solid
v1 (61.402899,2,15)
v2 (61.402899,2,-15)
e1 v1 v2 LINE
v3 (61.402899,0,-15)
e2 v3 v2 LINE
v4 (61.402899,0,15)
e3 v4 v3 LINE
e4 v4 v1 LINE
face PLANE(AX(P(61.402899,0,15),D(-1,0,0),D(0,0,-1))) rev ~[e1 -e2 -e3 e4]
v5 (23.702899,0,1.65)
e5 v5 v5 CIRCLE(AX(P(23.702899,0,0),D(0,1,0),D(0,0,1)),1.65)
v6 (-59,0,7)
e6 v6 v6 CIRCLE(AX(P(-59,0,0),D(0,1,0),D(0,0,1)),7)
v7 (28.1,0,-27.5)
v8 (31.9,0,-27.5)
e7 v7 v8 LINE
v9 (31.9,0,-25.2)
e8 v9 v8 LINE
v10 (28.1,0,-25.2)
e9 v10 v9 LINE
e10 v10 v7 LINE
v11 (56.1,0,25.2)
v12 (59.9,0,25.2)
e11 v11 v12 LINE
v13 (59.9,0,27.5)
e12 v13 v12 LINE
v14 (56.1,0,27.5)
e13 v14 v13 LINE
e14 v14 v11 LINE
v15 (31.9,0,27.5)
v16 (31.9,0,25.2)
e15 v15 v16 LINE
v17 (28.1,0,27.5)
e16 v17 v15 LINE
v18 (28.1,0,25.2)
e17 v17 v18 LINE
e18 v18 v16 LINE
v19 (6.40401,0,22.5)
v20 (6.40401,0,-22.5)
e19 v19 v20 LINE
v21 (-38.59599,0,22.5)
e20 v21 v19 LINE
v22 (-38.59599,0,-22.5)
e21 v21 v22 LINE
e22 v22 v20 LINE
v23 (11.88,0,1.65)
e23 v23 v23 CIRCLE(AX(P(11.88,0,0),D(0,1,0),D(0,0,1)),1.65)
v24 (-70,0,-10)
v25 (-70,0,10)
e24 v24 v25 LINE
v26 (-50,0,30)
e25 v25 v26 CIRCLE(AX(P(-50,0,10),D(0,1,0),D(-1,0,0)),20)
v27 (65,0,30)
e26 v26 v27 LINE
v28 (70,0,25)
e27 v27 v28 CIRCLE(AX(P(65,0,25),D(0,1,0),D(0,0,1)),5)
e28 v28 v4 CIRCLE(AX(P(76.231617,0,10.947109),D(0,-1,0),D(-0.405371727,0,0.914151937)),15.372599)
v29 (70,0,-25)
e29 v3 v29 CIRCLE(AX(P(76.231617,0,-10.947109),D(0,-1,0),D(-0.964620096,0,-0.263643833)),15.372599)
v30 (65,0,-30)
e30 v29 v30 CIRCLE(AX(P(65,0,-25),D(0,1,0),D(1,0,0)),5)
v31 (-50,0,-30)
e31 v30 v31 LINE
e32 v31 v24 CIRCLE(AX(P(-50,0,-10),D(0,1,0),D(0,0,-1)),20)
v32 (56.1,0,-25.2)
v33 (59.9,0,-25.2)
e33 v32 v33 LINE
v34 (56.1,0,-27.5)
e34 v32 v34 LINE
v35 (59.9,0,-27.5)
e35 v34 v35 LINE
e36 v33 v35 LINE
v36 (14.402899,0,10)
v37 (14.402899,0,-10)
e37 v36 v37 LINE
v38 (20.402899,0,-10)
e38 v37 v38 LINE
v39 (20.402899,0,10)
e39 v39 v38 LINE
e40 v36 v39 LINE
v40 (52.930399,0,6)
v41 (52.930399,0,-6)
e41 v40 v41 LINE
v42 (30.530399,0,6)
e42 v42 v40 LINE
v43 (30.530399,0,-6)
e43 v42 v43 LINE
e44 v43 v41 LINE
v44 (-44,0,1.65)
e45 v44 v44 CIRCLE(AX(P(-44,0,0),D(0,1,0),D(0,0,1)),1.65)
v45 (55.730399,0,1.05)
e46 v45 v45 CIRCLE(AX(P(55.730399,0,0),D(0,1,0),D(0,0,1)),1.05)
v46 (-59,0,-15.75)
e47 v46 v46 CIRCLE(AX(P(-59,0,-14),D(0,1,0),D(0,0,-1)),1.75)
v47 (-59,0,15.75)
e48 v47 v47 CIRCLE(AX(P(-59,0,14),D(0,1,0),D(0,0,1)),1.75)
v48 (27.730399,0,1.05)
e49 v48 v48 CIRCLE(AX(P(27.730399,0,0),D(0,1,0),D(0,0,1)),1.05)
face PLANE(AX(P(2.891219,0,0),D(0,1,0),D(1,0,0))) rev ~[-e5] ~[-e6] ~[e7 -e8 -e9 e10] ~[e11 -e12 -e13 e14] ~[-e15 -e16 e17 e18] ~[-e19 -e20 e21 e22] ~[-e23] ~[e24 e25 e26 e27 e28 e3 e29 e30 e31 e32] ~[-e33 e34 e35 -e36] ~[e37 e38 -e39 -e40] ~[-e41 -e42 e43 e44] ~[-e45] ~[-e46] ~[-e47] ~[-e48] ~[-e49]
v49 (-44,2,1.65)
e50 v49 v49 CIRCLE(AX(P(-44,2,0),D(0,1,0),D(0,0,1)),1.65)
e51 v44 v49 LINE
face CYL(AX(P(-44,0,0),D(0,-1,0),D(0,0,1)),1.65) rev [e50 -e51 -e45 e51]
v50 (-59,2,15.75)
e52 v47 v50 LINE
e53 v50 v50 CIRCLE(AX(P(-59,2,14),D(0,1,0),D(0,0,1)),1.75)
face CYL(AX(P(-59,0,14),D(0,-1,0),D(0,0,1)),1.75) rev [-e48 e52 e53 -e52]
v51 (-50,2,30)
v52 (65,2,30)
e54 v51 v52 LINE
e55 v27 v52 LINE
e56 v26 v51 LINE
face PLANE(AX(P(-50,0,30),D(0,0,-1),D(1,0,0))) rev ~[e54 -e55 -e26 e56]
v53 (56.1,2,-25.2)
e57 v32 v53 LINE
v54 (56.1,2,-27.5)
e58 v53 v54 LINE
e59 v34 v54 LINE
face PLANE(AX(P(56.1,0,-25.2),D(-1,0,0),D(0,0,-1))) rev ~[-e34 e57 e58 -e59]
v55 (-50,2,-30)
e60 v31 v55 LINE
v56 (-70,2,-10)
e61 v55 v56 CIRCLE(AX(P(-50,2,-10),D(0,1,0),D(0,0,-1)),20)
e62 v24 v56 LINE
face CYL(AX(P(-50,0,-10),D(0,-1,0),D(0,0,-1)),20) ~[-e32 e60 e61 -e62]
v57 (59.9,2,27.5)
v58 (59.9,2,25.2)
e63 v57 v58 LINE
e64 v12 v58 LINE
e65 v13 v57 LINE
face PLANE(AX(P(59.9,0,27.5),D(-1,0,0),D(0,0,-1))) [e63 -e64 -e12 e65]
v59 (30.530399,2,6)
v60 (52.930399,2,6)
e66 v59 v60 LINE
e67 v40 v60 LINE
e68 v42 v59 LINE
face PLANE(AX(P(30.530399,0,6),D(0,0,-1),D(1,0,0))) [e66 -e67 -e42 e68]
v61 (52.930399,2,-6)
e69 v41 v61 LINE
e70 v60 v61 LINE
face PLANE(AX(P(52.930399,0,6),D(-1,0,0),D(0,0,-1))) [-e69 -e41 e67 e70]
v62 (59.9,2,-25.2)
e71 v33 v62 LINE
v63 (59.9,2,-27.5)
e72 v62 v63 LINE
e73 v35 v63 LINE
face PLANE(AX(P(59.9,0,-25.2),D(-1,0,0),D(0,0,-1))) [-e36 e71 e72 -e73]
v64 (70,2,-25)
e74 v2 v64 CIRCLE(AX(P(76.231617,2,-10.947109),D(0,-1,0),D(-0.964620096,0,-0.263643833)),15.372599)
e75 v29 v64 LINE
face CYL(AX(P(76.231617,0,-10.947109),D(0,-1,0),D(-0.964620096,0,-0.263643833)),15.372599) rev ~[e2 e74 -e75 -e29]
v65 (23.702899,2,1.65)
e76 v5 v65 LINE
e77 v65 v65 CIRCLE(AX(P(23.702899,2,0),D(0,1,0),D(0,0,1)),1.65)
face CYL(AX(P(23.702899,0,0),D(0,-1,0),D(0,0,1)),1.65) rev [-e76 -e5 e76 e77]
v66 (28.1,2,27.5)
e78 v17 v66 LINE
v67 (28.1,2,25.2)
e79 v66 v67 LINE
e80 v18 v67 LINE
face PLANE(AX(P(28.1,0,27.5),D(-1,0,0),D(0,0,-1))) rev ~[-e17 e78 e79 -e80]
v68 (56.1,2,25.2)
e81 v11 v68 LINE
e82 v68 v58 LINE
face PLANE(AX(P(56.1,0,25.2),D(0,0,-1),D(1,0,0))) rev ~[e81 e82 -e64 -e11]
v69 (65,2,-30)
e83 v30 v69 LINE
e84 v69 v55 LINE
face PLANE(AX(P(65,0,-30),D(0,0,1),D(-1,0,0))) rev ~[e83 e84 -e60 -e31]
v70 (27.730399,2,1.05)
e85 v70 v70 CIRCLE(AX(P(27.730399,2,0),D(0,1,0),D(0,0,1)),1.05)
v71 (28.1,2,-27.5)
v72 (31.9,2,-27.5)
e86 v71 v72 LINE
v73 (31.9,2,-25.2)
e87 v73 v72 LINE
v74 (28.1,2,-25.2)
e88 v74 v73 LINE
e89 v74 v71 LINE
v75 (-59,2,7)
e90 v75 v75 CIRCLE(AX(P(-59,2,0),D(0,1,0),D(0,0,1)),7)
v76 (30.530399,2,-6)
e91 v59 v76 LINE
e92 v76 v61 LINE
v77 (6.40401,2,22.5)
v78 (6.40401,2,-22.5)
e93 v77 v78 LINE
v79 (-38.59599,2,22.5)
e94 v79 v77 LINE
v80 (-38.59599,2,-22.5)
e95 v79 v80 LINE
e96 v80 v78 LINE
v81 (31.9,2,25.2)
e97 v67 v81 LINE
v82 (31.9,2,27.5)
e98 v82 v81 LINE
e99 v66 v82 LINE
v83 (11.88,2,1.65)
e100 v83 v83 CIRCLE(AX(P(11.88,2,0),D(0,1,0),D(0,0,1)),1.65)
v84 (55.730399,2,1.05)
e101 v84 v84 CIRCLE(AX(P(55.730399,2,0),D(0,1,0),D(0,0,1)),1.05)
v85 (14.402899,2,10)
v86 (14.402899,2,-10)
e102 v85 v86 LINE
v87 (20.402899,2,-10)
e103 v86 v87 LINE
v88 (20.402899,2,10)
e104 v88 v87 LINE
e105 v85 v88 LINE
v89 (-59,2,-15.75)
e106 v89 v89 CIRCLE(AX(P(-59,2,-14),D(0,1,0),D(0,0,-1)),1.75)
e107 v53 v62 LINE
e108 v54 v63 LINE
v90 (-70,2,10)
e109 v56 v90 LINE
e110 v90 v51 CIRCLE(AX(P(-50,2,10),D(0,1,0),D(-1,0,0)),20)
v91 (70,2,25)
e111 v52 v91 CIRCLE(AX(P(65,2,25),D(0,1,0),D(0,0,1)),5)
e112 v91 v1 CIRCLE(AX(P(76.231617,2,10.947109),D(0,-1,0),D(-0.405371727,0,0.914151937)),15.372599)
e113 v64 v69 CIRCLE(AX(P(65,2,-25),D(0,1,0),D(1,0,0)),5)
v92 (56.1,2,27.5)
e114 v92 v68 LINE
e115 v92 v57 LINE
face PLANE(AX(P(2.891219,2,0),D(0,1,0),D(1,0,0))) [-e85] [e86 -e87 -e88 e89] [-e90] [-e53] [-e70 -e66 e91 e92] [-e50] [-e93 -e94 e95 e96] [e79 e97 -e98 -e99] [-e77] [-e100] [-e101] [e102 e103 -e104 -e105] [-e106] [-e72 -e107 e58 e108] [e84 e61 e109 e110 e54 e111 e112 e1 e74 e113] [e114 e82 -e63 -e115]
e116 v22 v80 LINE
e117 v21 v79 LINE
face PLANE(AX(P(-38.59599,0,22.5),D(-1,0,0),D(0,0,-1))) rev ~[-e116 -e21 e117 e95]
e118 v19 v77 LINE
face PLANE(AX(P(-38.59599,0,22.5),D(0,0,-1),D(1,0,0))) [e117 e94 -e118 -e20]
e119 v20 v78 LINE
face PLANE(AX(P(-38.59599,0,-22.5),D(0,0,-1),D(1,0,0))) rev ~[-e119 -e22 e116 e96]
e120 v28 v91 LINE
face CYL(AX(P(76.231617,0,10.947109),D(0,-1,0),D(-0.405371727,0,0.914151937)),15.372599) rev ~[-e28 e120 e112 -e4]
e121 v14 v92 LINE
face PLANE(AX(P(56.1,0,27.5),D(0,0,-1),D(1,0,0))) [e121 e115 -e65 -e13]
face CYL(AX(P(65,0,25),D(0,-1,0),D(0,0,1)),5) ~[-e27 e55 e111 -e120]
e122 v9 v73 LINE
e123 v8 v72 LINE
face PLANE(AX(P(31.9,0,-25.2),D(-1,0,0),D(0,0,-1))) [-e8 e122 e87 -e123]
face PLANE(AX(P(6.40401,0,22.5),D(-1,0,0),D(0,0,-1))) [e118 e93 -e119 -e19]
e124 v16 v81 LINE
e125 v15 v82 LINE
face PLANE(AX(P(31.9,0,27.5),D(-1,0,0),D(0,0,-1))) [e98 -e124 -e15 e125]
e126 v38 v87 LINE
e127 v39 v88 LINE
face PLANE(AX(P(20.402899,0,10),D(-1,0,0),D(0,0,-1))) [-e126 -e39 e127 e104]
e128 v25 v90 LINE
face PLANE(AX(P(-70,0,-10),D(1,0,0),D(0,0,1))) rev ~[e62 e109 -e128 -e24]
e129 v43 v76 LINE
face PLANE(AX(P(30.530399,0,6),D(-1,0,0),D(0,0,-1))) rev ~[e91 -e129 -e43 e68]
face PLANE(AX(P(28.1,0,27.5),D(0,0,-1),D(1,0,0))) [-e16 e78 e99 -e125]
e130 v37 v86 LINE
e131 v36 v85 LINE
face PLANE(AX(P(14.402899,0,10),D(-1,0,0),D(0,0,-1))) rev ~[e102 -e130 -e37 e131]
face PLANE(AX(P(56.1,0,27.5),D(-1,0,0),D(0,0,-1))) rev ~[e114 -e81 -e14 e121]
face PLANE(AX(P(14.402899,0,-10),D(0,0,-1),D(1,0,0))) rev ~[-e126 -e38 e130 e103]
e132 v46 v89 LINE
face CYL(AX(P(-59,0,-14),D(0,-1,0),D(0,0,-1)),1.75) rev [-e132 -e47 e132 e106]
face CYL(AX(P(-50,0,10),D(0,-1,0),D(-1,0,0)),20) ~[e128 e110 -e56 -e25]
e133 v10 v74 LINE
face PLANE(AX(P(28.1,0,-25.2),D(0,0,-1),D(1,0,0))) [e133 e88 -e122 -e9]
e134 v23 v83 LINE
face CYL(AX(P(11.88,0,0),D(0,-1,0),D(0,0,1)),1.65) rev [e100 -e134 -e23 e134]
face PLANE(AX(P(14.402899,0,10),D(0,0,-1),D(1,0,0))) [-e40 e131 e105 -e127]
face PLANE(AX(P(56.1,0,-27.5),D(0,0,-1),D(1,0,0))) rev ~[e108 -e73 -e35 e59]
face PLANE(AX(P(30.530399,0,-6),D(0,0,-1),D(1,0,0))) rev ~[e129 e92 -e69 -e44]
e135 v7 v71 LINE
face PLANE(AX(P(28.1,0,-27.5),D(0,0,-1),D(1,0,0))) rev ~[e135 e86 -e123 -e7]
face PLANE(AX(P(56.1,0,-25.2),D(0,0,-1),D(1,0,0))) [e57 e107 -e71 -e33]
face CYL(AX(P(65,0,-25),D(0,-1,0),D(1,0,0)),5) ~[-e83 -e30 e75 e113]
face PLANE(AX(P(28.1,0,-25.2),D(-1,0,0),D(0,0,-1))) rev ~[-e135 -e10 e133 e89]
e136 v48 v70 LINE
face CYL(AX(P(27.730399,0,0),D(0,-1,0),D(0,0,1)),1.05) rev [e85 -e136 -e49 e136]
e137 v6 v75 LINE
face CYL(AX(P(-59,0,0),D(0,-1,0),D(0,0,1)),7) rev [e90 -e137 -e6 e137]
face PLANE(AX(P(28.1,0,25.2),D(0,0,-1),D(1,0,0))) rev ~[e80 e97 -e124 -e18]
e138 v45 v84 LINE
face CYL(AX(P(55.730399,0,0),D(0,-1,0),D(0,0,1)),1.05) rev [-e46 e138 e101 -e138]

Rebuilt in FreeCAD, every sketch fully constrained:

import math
import FreeCAD as App
import Part
import Sketcher


def add_polygon(sketch, points):
    """Adds a closed chain of lines whose ends are joined by coincident constraints."""
    first, n = sketch.GeometryCount, len(points)
    for a, b in zip(points, points[1:] + points[:1]):
        sketch.addGeometry(Part.LineSegment(App.Vector(*a, 0), App.Vector(*b, 0)), False)
    for i in range(n):
        sketch.addConstraint(Sketcher.Constraint("Coincident", first + i, 2, first + (i + 1) % n, 1))

doc = App.newDocument("Part")
params = doc.addObject("Spreadsheet::Sheet", "Params")
for row, (alias, value) in enumerate([
    ("sketch1_diameter", "14 mm"),
    ("sketch1_radius", "5 mm"),
    ("sketch1_radius2", "20 mm"),
    ("sketch1_diameter2", "3.5 mm"),
    ("sketch1_diameter3", "3.3 mm"),
    ("pad1_length", "2 mm"),
], start=1):
    params.set(f"A{row}", alias)
    params.set(f"B{row}", "=" + value)
    params.setAlias(f"B{row}", alias)

body = doc.addObject("PartDesign::Body", "Body")

# Sketch on XZ plane
sketch1 = doc.addObject("Sketcher::SketchObject", "Sketch")
body.addObject(sketch1)
sketch1.AttachmentSupport = (doc.XZ_Plane, [""])
sketch1.MapMode = "FlatFace"
sketch1.addGeometry(Part.LineSegment(App.Vector(-50, 30, 0), App.Vector(65, 30, 0)), False)  # 0
sketch1.addGeometry(Part.ArcOfCircle(Part.Circle(App.Vector(65, 25, 0), App.Vector(0, 0, 1), 5), math.radians(0), math.radians(90)), False)  # 1
sketch1.addGeometry(Part.ArcOfCircle(Part.Circle(App.Vector(76.2, 10.9, 0), App.Vector(0, 0, 1), 15.4), math.radians(114), math.radians(165)), False)  # 2
sketch1.addGeometry(Part.LineSegment(App.Vector(61.4, 15, 0), App.Vector(61.4, -15, 0)), False)  # 3
sketch1.addGeometry(Part.ArcOfCircle(Part.Circle(App.Vector(76.2, -10.9, 0), App.Vector(0, 0, 1), 15.4), math.radians(-165), math.radians(-114)), False)  # 4
sketch1.addGeometry(Part.ArcOfCircle(Part.Circle(App.Vector(65, -25, 0), App.Vector(0, 0, 1), 5), math.radians(-90), math.radians(0)), False)  # 5
sketch1.addGeometry(Part.LineSegment(App.Vector(65, -30, 0), App.Vector(-50, -30, 0)), False)  # 6
sketch1.addGeometry(Part.ArcOfCircle(Part.Circle(App.Vector(-50, -10, 0), App.Vector(0, 0, 1), 20), math.radians(180), math.radians(270)), False)  # 7
sketch1.addGeometry(Part.LineSegment(App.Vector(-70, -10, 0), App.Vector(-70, 10, 0)), False)  # 8
sketch1.addGeometry(Part.ArcOfCircle(Part.Circle(App.Vector(-50, 10, 0), App.Vector(0, 0, 1), 20), math.radians(90), math.radians(180)), False)  # 9
sketch1.addGeometry(Part.Circle(App.Vector(-59, 14, 0), App.Vector(0, 0, 1), 1.8), False)  # 10
add_polygon(sketch1, [(31.9, 27.5), (28.1, 27.5), (28.1, 25.2), (31.9, 25.2)])  # lines 11-14
add_polygon(sketch1, [(59.9, 27.5), (56.1, 27.5), (56.1, 25.2), (59.9, 25.2)])  # lines 15-18
sketch1.addGeometry(Part.Circle(App.Vector(-59, 0, 0), App.Vector(0, 0, 1), 7), False)  # 19
sketch1.addGeometry(Part.Circle(App.Vector(-44, 0, 0), App.Vector(0, 0, 1), 1.6), False)  # 20
add_polygon(sketch1, [(6.4, 22.5), (-38.6, 22.5), (-38.6, -22.5), (6.4, -22.5)])  # lines 21-24
sketch1.addGeometry(Part.Circle(App.Vector(-59, -14, 0), App.Vector(0, 0, 1), 1.8), False)  # 25
sketch1.addGeometry(Part.Circle(App.Vector(11.9, 0, 0), App.Vector(0, 0, 1), 1.6), False)  # 26
add_polygon(sketch1, [(20.4, 10), (14.4, 10), (14.4, -10), (20.4, -10)])  # lines 27-30
sketch1.addGeometry(Part.Circle(App.Vector(23.7, 0, 0), App.Vector(0, 0, 1), 1.6), False)  # 31
sketch1.addGeometry(Part.Circle(App.Vector(27.7, 0, 0), App.Vector(0, 0, 1), 1.1), False)  # 32
add_polygon(sketch1, [(52.9, 6), (30.5, 6), (30.5, -6), (52.9, -6)])  # lines 33-36
sketch1.addGeometry(Part.Circle(App.Vector(55.7, 0, 0), App.Vector(0, 0, 1), 1.1), False)  # 37
add_polygon(sketch1, [(31.9, -25.2), (28.1, -25.2), (28.1, -27.5), (31.9, -27.5)])  # lines 38-41
add_polygon(sketch1, [(59.9, -25.2), (56.1, -25.2), (56.1, -27.5), (59.9, -27.5)])  # lines 42-45
sketch1.addConstraint(Sketcher.Constraint("Tangent", 0, 2, 1, 2))
sketch1.addConstraint(Sketcher.Constraint("Coincident", 1, 1, 2, 1))
sketch1.addConstraint(Sketcher.Constraint("Coincident", 2, 2, 3, 1))
sketch1.addConstraint(Sketcher.Constraint("Coincident", 3, 2, 4, 1))
sketch1.addConstraint(Sketcher.Constraint("Coincident", 4, 2, 5, 2))
sketch1.addConstraint(Sketcher.Constraint("Tangent", 5, 1, 6, 1))
sketch1.addConstraint(Sketcher.Constraint("Tangent", 6, 2, 7, 2))
sketch1.addConstraint(Sketcher.Constraint("Tangent", 7, 1, 8, 1))
sketch1.addConstraint(Sketcher.Constraint("Tangent", 8, 2, 9, 2))
sketch1.addConstraint(Sketcher.Constraint("Tangent", 9, 1, 0, 1))
sketch1.addConstraint(Sketcher.Constraint("Horizontal", 0))
sketch1.addConstraint(Sketcher.Constraint("Vertical", 3))
sketch1.addConstraint(Sketcher.Constraint("Horizontal", 6))
sketch1.addConstraint(Sketcher.Constraint("Vertical", 8))
sketch1.addConstraint(Sketcher.Constraint("Horizontal", 11))
sketch1.addConstraint(Sketcher.Constraint("Vertical", 12))
sketch1.addConstraint(Sketcher.Constraint("Horizontal", 13))
sketch1.addConstraint(Sketcher.Constraint("Vertical", 14))
sketch1.addConstraint(Sketcher.Constraint("Horizontal", 15))
sketch1.addConstraint(Sketcher.Constraint("Vertical", 16))
sketch1.addConstraint(Sketcher.Constraint("Horizontal", 17))
sketch1.addConstraint(Sketcher.Constraint("Vertical", 18))
sketch1.addConstraint(Sketcher.Constraint("Horizontal", 21))
sketch1.addConstraint(Sketcher.Constraint("Vertical", 22))
sketch1.addConstraint(Sketcher.Constraint("Horizontal", 23))
sketch1.addConstraint(Sketcher.Constraint("Vertical", 24))
sketch1.addConstraint(Sketcher.Constraint("Horizontal", 27))
sketch1.addConstraint(Sketcher.Constraint("Vertical", 28))
sketch1.addConstraint(Sketcher.Constraint("Horizontal", 29))
sketch1.addConstraint(Sketcher.Constraint("Vertical", 30))
sketch1.addConstraint(Sketcher.Constraint("Horizontal", 33))
sketch1.addConstraint(Sketcher.Constraint("Vertical", 34))
sketch1.addConstraint(Sketcher.Constraint("Horizontal", 35))
sketch1.addConstraint(Sketcher.Constraint("Vertical", 36))
sketch1.addConstraint(Sketcher.Constraint("Horizontal", 38))
sketch1.addConstraint(Sketcher.Constraint("Vertical", 39))
sketch1.addConstraint(Sketcher.Constraint("Horizontal", 40))
sketch1.addConstraint(Sketcher.Constraint("Vertical", 41))
sketch1.addConstraint(Sketcher.Constraint("Horizontal", 42))
sketch1.addConstraint(Sketcher.Constraint("Vertical", 43))
sketch1.addConstraint(Sketcher.Constraint("Horizontal", 44))
sketch1.addConstraint(Sketcher.Constraint("Vertical", 45))
sketch1.addConstraint(Sketcher.Constraint("Equal", 2, 4))
sketch1.addConstraint(Sketcher.Constraint("Equal", 1, 5))
sketch1.addConstraint(Sketcher.Constraint("Equal", 7, 9))
sketch1.addConstraint(Sketcher.Constraint("Equal", 10, 25))
sketch1.addConstraint(Sketcher.Constraint("Equal", 20, 26))
sketch1.addConstraint(Sketcher.Constraint("Equal", 26, 31))
sketch1.addConstraint(Sketcher.Constraint("Equal", 32, 37))
sketch1.addConstraint(Sketcher.Constraint("Symmetric", 2, 3, 4, 3, -1))
sketch1.addConstraint(Sketcher.Constraint("Symmetric", 1, 3, 5, 3, -1))
sketch1.addConstraint(Sketcher.Constraint("Symmetric", 10, 3, 25, 3, -1))
sketch1.addConstraint(Sketcher.Constraint("Symmetric", 12, 2, 38, 2, -1))
sketch1.addConstraint(Sketcher.Constraint("Symmetric", 14, 2, 40, 2, -1))
sketch1.addConstraint(Sketcher.Constraint("Symmetric", 16, 2, 42, 2, -1))
sketch1.addConstraint(Sketcher.Constraint("Symmetric", 18, 2, 44, 2, -1))
sketch1.addConstraint(Sketcher.Constraint("PointOnObject", 19, 3, -1))
sketch1.addConstraint(Sketcher.Constraint("PointOnObject", 20, 3, -1))
sketch1.addConstraint(Sketcher.Constraint("PointOnObject", 26, 3, -1))
sketch1.addConstraint(Sketcher.Constraint("PointOnObject", 31, 3, -1))
sketch1.addConstraint(Sketcher.Constraint("PointOnObject", 32, 3, -1))
sketch1.addConstraint(Sketcher.Constraint("PointOnObject", 37, 3, -1))
sketch1.addConstraint(Sketcher.Constraint("Horizontal", 5, 3, 4, 2))
sketch1.addConstraint(Sketcher.Constraint("Horizontal", 14, 2, 15, 2))
sketch1.addConstraint(Sketcher.Constraint("Horizontal", 13, 2, 16, 2))
sketch1.addConstraint(Sketcher.Constraint("Horizontal", 8, 2, 27, 2))
sketch1.addConstraint(Sketcher.Constraint("Horizontal", 7, 1, 28, 2))
sketch1.addConstraint(Sketcher.Constraint("Vertical", 10, 3, 19, 3))
sketch1.addConstraint(Sketcher.Constraint("Equal", 13, 15))
sketch1.addConstraint(Sketcher.Constraint("Equal", 23, 22))
sketch1.addConstraint(Sketcher.Constraint("Diameter", 19, 14.0))
sketch1.addConstraint(Sketcher.Constraint("Radius", 1, 5.0))
sketch1.addConstraint(Sketcher.Constraint("Radius", 7, 20.0))
sketch1.addConstraint(Sketcher.Constraint("Diameter", 10, 3.5))
sketch1.addConstraint(Sketcher.Constraint("Diameter", 20, 3.3))
sketch1.addConstraint(Sketcher.Constraint("Diameter", 32, 2.1))
sketch1.addConstraint(Sketcher.Constraint("DistanceX", 0, 1, 0, 2, 115.0))
sketch1.addConstraint(Sketcher.Constraint("DistanceX", 21, 2, 21, 1, 45.0))
sketch1.addConstraint(Sketcher.Constraint("DistanceX", 27, 2, 27, 1, 6.0))
sketch1.addConstraint(Sketcher.Constraint("DistanceY", 3, 2, 3, 1, 30.0))
sketch1.addConstraint(Sketcher.Constraint("DistanceY", 8, 1, 8, 2, 20.0))
sketch1.addConstraint(Sketcher.Constraint("DistanceY", 34, 2, 34, 1, 12.0))
sketch1.addConstraint(Sketcher.Constraint("DistanceX", 11, 2, 11, 1, 3.8))
sketch1.addConstraint(Sketcher.Constraint("DistanceX", 33, 2, 33, 1, 22.4))
sketch1.addConstraint(Sketcher.Constraint("DistanceY", 12, 2, 12, 1, 2.3))
sketch1.addConstraint(Sketcher.Constraint("DistanceX", -1, 1, 1, 3, 65.0))
sketch1.addConstraint(Sketcher.Constraint("DistanceX", 10, 3, -1, 1, 59.0))
sketch1.addConstraint(Sketcher.Constraint("DistanceY", -1, 1, 10, 3, 14.0))
sketch1.addConstraint(Sketcher.Constraint("DistanceX", 20, 3, -1, 1, 44.0))
sketch1.addConstraint(Sketcher.Constraint("DistanceY", -1, 1, 33, 2, 6.0))
sketch1.addConstraint(Sketcher.Constraint("DistanceX", 32, 3, 37, 3, 28.0))
sketch1.addConstraint(Sketcher.Constraint("DistanceY", 24, 2, 11, 2, 5.0))
sketch1.addConstraint(Sketcher.Constraint("DistanceY", 39, 2, 23, 2, 5.0))
sketch1.addConstraint(Sketcher.Constraint("DistanceX", -1, 1, 11, 2, 28.1))
sketch1.addConstraint(Sketcher.Constraint("DistanceX", -1, 1, 15, 2, 56.1))
sketch1.addConstraint(Sketcher.Constraint("Radius", 2, 15.372599))
sketch1.addConstraint(Sketcher.Constraint("DistanceX", 27, 2, 31, 3, 9.3))
sketch1.addConstraint(Sketcher.Constraint("DistanceX", 32, 3, 33, 2, 2.8))
sketch1.addConstraint(Sketcher.Constraint("DistanceX", -1, 1, 26, 3, 11.88))
sketch1.addConstraint(Sketcher.Constraint("DistanceX", -1, 1, 31, 3, 23.702899))
sketch1.addConstraint(Sketcher.Constraint("DistanceX", -1, 1, 32, 3, 27.730399))
sketch1.addConstraint(Sketcher.Constraint("DistanceX", -1, 1, 2, 2, 61.402899))
sketch1.addConstraint(Sketcher.Constraint("DistanceX", 21, 2, -1, 1, 38.59599))
sketch1.setExpression("Constraints[98]", "Params.sketch1_diameter")
sketch1.setExpression("Constraints[99]", "Params.sketch1_radius")
sketch1.setExpression("Constraints[100]", "Params.sketch1_radius2")
sketch1.setExpression("Constraints[101]", "Params.sketch1_diameter2")
sketch1.setExpression("Constraints[102]", "Params.sketch1_diameter3")
pad1 = doc.addObject("PartDesign::Pad", "Pad")
body.addObject(pad1)
pad1.Profile = sketch1
pad1.setExpression("Length", "Params.pad1_length")
pad1.Reversed = True

doc.recompute()
